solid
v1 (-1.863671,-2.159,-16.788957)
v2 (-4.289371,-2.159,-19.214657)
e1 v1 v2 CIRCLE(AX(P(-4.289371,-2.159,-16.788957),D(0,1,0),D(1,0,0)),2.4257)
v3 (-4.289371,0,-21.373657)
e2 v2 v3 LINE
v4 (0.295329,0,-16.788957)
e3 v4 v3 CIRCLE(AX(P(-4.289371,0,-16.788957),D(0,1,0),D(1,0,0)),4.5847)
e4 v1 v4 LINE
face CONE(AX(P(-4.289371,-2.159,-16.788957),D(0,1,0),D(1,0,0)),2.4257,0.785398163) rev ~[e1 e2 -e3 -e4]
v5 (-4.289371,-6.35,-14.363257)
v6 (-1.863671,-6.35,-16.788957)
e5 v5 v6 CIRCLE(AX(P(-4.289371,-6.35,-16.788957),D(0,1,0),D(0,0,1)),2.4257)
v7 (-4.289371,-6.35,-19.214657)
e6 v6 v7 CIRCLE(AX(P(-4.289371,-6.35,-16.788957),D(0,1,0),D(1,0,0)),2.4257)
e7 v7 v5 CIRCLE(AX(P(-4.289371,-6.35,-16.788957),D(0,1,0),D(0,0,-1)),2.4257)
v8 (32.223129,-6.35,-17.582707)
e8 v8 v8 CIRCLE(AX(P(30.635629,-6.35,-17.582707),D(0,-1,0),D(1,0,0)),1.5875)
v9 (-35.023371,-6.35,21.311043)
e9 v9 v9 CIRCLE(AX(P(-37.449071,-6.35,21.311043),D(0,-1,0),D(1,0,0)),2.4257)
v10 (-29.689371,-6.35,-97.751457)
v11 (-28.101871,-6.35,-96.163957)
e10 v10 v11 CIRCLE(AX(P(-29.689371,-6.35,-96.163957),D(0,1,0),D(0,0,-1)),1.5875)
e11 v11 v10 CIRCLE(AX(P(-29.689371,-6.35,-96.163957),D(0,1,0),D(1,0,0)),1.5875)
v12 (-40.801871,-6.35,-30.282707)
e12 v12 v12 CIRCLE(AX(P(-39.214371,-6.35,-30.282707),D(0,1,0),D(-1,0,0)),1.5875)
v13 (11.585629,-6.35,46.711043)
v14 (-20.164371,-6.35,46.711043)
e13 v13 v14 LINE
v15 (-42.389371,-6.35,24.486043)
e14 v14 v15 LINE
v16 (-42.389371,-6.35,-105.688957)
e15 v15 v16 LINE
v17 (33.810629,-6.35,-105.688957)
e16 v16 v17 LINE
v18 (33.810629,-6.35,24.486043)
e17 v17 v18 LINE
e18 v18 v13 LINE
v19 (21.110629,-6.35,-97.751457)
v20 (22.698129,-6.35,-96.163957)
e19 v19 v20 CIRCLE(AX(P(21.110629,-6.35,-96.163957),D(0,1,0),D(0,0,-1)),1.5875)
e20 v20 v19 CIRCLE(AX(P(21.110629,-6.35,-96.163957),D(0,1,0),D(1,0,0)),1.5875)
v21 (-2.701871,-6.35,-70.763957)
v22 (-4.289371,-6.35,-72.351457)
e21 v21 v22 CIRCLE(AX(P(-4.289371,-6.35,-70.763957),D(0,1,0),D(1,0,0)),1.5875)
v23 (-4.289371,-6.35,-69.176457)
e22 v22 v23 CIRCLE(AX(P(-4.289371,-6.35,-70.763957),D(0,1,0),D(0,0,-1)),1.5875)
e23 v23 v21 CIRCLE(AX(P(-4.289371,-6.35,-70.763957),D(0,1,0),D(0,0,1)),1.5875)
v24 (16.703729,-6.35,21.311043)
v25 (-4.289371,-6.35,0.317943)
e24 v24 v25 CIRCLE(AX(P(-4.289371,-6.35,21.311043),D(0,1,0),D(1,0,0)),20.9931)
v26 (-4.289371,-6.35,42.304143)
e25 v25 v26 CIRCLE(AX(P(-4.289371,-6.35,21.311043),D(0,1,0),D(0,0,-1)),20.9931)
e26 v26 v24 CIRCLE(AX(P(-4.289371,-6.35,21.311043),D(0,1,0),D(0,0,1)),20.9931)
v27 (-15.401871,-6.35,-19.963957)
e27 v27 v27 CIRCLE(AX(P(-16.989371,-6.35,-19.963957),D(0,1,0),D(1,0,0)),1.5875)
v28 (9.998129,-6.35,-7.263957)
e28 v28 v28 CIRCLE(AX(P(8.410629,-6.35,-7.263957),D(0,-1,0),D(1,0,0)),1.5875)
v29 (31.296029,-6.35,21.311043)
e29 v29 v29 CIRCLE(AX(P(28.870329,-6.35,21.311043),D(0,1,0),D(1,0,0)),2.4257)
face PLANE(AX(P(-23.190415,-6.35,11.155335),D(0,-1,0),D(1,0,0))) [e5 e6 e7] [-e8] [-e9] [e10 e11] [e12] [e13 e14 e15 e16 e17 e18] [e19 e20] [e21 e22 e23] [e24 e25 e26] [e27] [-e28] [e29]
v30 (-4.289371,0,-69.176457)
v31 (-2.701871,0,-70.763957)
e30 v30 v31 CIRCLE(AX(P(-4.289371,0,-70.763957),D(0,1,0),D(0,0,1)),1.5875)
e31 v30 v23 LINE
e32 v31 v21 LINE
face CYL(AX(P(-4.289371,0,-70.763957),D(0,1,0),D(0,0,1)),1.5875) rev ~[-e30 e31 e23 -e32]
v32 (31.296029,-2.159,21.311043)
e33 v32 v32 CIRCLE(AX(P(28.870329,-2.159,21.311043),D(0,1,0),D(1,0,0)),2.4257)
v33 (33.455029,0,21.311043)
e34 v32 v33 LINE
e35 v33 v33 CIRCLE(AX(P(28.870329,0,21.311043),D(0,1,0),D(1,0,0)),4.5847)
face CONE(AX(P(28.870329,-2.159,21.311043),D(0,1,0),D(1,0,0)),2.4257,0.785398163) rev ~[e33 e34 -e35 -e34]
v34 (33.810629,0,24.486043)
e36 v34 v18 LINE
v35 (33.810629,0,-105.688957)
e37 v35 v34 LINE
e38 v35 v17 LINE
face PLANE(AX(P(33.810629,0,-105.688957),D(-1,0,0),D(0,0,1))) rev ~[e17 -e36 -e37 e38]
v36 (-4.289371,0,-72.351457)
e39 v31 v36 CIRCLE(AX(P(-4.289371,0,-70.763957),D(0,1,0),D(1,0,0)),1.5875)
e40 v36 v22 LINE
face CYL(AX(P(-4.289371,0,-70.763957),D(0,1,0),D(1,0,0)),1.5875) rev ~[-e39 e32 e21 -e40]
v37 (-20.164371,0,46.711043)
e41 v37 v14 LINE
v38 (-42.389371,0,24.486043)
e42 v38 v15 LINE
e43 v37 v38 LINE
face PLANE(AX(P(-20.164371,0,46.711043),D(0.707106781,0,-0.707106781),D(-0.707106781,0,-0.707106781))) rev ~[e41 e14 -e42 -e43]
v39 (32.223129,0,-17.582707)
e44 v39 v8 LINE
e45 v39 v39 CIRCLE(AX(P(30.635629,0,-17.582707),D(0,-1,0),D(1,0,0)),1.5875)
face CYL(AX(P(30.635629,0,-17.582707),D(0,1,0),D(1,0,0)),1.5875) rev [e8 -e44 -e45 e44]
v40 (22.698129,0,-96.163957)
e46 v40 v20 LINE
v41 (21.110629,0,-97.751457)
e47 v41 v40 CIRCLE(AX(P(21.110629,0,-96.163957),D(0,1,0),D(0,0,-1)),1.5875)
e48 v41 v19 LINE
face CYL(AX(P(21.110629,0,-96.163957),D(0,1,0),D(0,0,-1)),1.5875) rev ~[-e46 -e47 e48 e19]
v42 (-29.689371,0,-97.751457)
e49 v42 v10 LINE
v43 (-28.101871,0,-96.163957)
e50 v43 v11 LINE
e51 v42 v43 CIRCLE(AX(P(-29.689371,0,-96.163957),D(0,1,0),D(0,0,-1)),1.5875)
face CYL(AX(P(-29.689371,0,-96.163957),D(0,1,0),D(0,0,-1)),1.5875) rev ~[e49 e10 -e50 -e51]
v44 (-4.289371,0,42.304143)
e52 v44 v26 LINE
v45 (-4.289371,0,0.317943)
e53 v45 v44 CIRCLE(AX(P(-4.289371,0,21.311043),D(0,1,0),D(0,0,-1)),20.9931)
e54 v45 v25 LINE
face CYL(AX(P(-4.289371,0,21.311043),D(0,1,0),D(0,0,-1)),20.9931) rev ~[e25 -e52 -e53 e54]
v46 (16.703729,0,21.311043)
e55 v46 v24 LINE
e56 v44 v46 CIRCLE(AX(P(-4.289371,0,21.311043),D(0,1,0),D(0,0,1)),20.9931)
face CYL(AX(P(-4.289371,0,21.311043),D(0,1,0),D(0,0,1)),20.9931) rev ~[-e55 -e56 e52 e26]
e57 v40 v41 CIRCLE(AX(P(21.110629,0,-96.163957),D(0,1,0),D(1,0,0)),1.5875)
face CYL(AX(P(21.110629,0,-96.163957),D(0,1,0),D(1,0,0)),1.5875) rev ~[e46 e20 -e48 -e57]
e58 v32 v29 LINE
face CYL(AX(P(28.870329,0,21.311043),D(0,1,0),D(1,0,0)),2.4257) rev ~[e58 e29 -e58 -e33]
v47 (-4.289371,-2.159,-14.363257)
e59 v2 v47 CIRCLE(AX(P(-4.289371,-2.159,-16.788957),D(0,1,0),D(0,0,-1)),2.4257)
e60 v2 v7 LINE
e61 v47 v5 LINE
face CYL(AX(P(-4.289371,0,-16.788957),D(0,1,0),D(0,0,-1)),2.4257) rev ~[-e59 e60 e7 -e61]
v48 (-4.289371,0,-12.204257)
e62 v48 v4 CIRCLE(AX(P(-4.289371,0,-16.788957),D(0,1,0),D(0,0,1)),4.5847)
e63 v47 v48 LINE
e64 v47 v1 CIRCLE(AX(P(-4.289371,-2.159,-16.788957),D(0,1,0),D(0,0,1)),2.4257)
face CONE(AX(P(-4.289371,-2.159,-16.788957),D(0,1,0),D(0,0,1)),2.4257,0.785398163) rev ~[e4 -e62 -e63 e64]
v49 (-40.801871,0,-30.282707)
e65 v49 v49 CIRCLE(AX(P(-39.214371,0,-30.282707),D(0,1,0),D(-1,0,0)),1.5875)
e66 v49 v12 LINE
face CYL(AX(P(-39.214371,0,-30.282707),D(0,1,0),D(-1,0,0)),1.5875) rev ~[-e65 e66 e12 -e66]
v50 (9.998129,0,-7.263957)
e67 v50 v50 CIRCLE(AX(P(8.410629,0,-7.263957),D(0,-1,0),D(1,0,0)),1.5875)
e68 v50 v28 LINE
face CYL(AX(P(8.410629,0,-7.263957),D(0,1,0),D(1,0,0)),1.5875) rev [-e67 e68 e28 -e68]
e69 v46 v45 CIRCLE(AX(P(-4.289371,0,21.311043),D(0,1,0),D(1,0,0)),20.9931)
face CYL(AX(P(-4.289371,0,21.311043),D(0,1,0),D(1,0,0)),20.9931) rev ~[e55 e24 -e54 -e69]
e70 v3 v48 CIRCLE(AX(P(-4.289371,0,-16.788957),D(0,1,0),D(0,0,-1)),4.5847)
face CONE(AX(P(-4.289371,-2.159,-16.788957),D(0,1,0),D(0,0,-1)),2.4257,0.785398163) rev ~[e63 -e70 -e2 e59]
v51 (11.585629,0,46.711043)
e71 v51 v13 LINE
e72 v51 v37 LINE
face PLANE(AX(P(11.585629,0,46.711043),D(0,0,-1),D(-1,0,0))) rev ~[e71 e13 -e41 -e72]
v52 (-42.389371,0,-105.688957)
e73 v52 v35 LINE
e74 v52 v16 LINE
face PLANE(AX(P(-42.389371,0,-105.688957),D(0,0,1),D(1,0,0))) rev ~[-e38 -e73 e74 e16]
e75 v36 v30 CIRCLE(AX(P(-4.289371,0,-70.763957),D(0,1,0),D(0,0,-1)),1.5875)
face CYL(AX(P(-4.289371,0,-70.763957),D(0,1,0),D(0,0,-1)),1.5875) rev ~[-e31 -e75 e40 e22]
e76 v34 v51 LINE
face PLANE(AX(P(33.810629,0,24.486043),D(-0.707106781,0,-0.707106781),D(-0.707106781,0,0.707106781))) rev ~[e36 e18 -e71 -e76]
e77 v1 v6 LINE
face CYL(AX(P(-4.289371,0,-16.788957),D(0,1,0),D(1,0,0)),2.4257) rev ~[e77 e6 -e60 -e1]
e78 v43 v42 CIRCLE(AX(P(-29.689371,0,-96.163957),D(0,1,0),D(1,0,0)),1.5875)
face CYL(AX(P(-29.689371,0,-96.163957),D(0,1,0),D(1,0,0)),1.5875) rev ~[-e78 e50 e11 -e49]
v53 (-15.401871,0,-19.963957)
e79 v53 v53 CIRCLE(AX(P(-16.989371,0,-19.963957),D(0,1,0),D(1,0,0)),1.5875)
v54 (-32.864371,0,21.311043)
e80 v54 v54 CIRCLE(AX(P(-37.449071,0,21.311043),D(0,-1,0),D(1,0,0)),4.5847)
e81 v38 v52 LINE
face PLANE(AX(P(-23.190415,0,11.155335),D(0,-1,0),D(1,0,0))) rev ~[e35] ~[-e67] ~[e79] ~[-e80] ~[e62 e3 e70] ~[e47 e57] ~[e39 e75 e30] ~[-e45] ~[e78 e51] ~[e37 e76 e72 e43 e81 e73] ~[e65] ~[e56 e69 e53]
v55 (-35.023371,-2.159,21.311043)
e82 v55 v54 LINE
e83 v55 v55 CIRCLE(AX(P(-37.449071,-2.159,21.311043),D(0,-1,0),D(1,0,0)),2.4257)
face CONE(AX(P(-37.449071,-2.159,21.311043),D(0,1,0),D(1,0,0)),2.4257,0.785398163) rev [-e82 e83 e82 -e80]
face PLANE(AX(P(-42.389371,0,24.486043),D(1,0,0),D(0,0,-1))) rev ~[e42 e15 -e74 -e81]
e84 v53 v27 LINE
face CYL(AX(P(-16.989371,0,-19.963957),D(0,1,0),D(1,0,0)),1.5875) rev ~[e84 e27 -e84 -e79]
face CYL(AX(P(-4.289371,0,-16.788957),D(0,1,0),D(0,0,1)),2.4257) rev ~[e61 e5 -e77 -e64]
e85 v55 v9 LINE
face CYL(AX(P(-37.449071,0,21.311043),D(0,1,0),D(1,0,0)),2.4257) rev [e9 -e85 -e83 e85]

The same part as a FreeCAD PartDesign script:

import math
import FreeCAD as App
import Part
import Sketcher
from FreeCAD import Vector
Q = App.Units.Quantity


def edges_at(feature, points):
    """Names of the edges that pass closest to the given points."""
    edges = feature.Shape.Edges
    near = lambda p: min(range(len(edges)), key=lambda i: edges[i].distToShape(Part.Vertex(*p))[0])
    return sorted({f"Edge{near(p) + 1}" for p in points})

doc = App.newDocument("Part")
body = doc.addObject("PartDesign::Body", "Body")

sketch1 = body.newObject("Sketcher::SketchObject", "Sketch")
sketch1.AttachmentSupport = (doc.getObject("XZ_Plane"), [""])
sketch1.MapMode = "FlatFace"
sketch1.addGeometry([
    Part.LineSegment(Vector(-20.2, 46.7, 0), Vector(-42.4, 24.5, 0)),
    Part.LineSegment(Vector(-42.4, 24.5, 0), Vector(-42.4, -105.7, 0)),
    Part.LineSegment(Vector(-42.4, -105.7, 0), Vector(33.8, -105.7, 0)),
    Part.LineSegment(Vector(33.8, -105.7, 0), Vector(33.8, 24.5, 0)),
    Part.LineSegment(Vector(33.8, 24.5, 0), Vector(11.6, 46.7, 0)),
    Part.LineSegment(Vector(11.6, 46.7, 0), Vector(-20.2, 46.7, 0)),
    Part.ArcOfCircle(Part.Circle(Vector(-29.7, -96.2, 0), Vector(0, 0, 1), 1.6), math.radians(0), math.radians(270)),
    Part.ArcOfCircle(Part.Circle(Vector(-29.7, -96.2, 0), Vector(0, 0, 1), 1.6), math.radians(-90), math.radians(0)),
    Part.Circle(Vector(-39.2, -30.3, 0), Vector(0, 0, 1), 1.6),
    Part.ArcOfCircle(Part.Circle(Vector(-4.3, -70.8, 0), Vector(0, 0, 1), 1.6), math.radians(90), math.radians(270)),
    Part.ArcOfCircle(Part.Circle(Vector(-4.3, -70.8, 0), Vector(0, 0, 1), 1.6), math.radians(0), math.radians(90)),
    Part.ArcOfCircle(Part.Circle(Vector(-4.3, -70.8, 0), Vector(0, 0, 1), 1.6), math.radians(-90), math.radians(0)),
    Part.ArcOfCircle(Part.Circle(Vector(21.1, -96.2, 0), Vector(0, 0, 1), 1.6), math.radians(0), math.radians(270)),
    Part.ArcOfCircle(Part.Circle(Vector(21.1, -96.2, 0), Vector(0, 0, 1), 1.6), math.radians(-90), math.radians(0)),
    Part.Circle(Vector(-17, -20, 0), Vector(0, 0, 1), 1.6),
    Part.Circle(Vector(-37.4, 21.3, 0), Vector(0, 0, 1), 2.4),
    Part.ArcOfCircle(Part.Circle(Vector(-4.3, -16.8, 0), Vector(0, 0, 1), 2.4), math.radians(90), math.radians(270)),
    Part.ArcOfCircle(Part.Circle(Vector(-4.3, -16.8, 0), Vector(0, 0, 1), 2.4), math.radians(0), math.radians(90)),
    Part.ArcOfCircle(Part.Circle(Vector(-4.3, -16.8, 0), Vector(0, 0, 1), 2.4), math.radians(-90), math.radians(0)),
    Part.Circle(Vector(8.4, -7.3, 0), Vector(0, 0, 1), 1.6),
    Part.Circle(Vector(30.6, -17.6, 0), Vector(0, 0, 1), 1.6),
    Part.ArcOfCircle(Part.Circle(Vector(-4.3, 21.3, 0), Vector(0, 0, 1), 21), math.radians(0), math.radians(90)),
    Part.ArcOfCircle(Part.Circle(Vector(-4.3, 21.3, 0), Vector(0, 0, 1), 21), math.radians(-90), math.radians(0)),
    Part.ArcOfCircle(Part.Circle(Vector(-4.3, 21.3, 0), Vector(0, 0, 1), 21), math.radians(90), math.radians(270)),
    Part.Circle(Vector(28.9, 21.3, 0), Vector(0, 0, 1), 2.4),
], False)
sketch1.addConstraint([
    Sketcher.Constraint("Coincident", 0, 2, 1, 1),
    Sketcher.Constraint("Coincident", 1, 2, 2, 1),
    Sketcher.Constraint("Coincident", 2, 2, 3, 1),
    Sketcher.Constraint("Coincident", 3, 2, 4, 1),
    Sketcher.Constraint("Coincident", 4, 2, 5, 1),
    Sketcher.Constraint("Coincident", 5, 2, 0, 1),
    Sketcher.Constraint("Tangent", 6, 1, 7, 2),
    Sketcher.Constraint("Coincident", 7, 1, 6, 2),
    Sketcher.Constraint("Tangent", 9, 1, 10, 2),
    Sketcher.Constraint("Tangent", 10, 1, 11, 2),
    Sketcher.Constraint("Tangent", 11, 1, 9, 2),
    Sketcher.Constraint("Tangent", 12, 1, 13, 2),
    Sketcher.Constraint("Coincident", 13, 1, 12, 2),
    Sketcher.Constraint("Tangent", 16, 1, 17, 2),
    Sketcher.Constraint("Tangent", 17, 1, 18, 2),
    Sketcher.Constraint("Tangent", 18, 1, 16, 2),
    Sketcher.Constraint("Tangent", 21, 1, 22, 2),
    Sketcher.Constraint("Tangent", 22, 1, 23, 2),
    Sketcher.Constraint("Tangent", 23, 1, 21, 2),
    Sketcher.Constraint("Vertical", 1),
    Sketcher.Constraint("Horizontal", 2),
    Sketcher.Constraint("Vertical", 3),
    Sketcher.Constraint("Horizontal", 5),
    Sketcher.Constraint("Equal", 7, 8),
    Sketcher.Constraint("Equal", 8, 9),
    Sketcher.Constraint("Equal", 11, 12),
    Sketcher.Constraint("Equal", 13, 14),
    Sketcher.Constraint("Equal", 15, 16),
    Sketcher.Constraint("Equal", 14, 19),
    Sketcher.Constraint("Equal", 19, 20),
    Sketcher.Constraint("Equal", 18, 24),
    Sketcher.Constraint("Perpendicular", 0, 4),
    Sketcher.Constraint("Horizontal", 7, 3, 12, 3),
    Sketcher.Constraint("Horizontal", 15, 3, 21, 3),
    Sketcher.Constraint("Horizontal", 23, 3, 24, 3),
    Sketcher.Constraint("Horizontal", 0, 2, 3, 2),
    Sketcher.Constraint("Horizontal", 13, 3, 6, 1),
    Sketcher.Constraint("Horizontal", 11, 3, 10, 1),
    Sketcher.Constraint("Horizontal", 6, 1, 12, 1),
    Sketcher.Constraint("Horizontal", 18, 3, 17, 1),
    Sketcher.Constraint("Horizontal", 24, 3, 21, 1),
    Sketcher.Constraint("Vertical", 11, 3, 16, 3),
    Sketcher.Constraint("Vertical", 18, 3, 21, 3),
    Sketcher.Constraint("Vertical", 6, 3, 7, 1),
    Sketcher.Constraint("Vertical", 23, 3, 9, 1),
    Sketcher.Constraint("Vertical", 9, 1, 11, 1),
    Sketcher.Constraint("Vertical", 12, 3, 13, 1),
    Sketcher.Constraint("Vertical", 11, 1, 16, 1),
    Sketcher.Constraint("Vertical", 16, 1, 18, 1),
    Sketcher.Constraint("Vertical", 18, 1, 22, 1),
    Sketcher.Constraint("Vertical", 22, 1, 23, 1),
    Sketcher.Constraint("Equal", 0, 4),
    Sketcher.Constraint("DistanceX", 2, 1, 2, 2, Q("3 in")),
    Sketcher.Constraint("Diameter", 8, Q("0.125 in")),
    Sketcher.Constraint("Diameter", 15, Q("0.191 in")),
    Sketcher.Constraint("DistanceX", 7, 3, 9, 3, Q("1 in")),
    Sketcher.Constraint("DistanceY", 7, 3, 9, 3, Q("1 in")),
    Sketcher.Constraint("DistanceX", 9, 3, 12, 3, Q("1 in")),
    Sketcher.Constraint("DistanceY", 11, 3, 14, 3, Q("2 in")),
    Sketcher.Constraint("DistanceX", 14, 3, 19, 3, Q("1 in")),
    Sketcher.Constraint("DistanceX", 0, 2, 14, 3, Q("1 in")),
    Sketcher.Constraint("DistanceY", 21, 3, 4, 2, Q("1 in")),
    Sketcher.Constraint("DistanceX", 5, 2, 5, 1, Q("1.25 in")),
    Sketcher.Constraint("Radius", 21, Q("0.8265 in")),
    Sketcher.Constraint("DistanceX", 14, 3, 11, 3, Q("0.5 in")),
    Sketcher.Constraint("DistanceY", 16, 3, 15, 3, Q("1.5 in")),
    Sketcher.Constraint("DistanceY", 14, 3, 19, 3, Q("0.5 in")),
    Sketcher.Constraint("DistanceY", 1, 2, 1, 1, Q("5.125 in")),
    Sketcher.Constraint("DistanceY", 14, 3, 0, 2, Q("1.75 in")),
    Sketcher.Constraint("DistanceX", 8, 3, 7, 3, Q("0.375 in")),
    Sketcher.Constraint("DistanceY", 7, 3, 8, 3, Q("2.59375 in")),
    Sketcher.Constraint("DistanceX", 19, 3, 20, 3, Q("0.875 in")),
    Sketcher.Constraint("DistanceY", 20, 3, 19, 3, Q("0.40625 in")),
    Sketcher.Constraint("DistanceX", 21, 1, 24, 3, Q("0.479 in")),
    Sketcher.Constraint("DistanceX", 15, 3, 14, 3, Q("0.8055 in")),
    Sketcher.Constraint("DistanceX", 6, 3, -1, 1, 29.689371),
    Sketcher.Constraint("DistanceY", 6, 3, -1, 1, 96.163957),
])
pad1 = body.newObject("PartDesign::Pad", "Pad")
pad1.Profile = sketch1
pad1.Length = Q("0.25 in")
doc.recompute()

chamfer = body.newObject("PartDesign::Chamfer", "Chamfer")
chamfer.Base = (pad1, edges_at(pad1, [(26.445, 0, 21.311), (-6.715, 0, -16.789), (-39.875, 0, 21.311)]))
chamfer.Size = Q("0.085 in")

doc.recompute()
